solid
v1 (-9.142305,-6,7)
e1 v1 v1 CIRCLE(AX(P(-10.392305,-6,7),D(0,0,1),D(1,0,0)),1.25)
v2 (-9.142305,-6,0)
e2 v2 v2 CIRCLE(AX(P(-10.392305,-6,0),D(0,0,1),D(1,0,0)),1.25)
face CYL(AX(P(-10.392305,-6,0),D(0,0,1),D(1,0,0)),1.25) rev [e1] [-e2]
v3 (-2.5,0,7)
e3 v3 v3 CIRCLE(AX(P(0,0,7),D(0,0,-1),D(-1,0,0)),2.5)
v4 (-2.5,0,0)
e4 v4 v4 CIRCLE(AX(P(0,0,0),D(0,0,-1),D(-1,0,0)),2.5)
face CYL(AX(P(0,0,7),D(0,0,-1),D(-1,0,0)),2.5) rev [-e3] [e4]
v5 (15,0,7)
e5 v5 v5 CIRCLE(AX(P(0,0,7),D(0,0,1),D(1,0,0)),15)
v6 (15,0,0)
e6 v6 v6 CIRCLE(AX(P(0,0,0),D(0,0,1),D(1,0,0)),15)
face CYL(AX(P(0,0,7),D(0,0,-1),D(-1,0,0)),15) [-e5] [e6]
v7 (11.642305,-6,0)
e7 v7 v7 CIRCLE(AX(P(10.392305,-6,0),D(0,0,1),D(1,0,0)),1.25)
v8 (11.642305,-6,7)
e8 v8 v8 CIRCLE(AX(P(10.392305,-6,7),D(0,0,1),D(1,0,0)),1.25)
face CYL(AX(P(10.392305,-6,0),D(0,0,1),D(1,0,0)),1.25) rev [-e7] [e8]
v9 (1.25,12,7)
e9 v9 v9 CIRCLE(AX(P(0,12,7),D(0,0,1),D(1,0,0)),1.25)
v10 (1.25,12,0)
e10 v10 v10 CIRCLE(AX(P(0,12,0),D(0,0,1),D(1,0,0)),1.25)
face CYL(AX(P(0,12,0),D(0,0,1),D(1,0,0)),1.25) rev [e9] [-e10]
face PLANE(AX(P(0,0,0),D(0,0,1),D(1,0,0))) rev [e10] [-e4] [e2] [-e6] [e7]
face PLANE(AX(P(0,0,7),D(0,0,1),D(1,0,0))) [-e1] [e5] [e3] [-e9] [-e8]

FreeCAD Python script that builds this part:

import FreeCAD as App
import Part
import Sketcher
Q = App.Units.Quantity

doc = App.newDocument("Part")
body = doc.addObject("PartDesign::Body", "Body")

sketch1 = doc.addObject("Sketcher::SketchObject", "Sketch")
body.addObject(sketch1)
sketch1.AttachmentSupport = (doc.XY_Plane, [""])
sketch1.MapMode = "FlatFace"
sketch1.addGeometry(Part.Circle(App.Vector(0, 0, 0), App.Vector(0, 0, 1), 15), False)
sketch1.addConstraint([
    Sketcher.Constraint("Coincident", 0, 3, -1, 1),
    Sketcher.Constraint("Diameter", 0, Q("30 mm")),
])
pad1 = doc.addObject("PartDesign::Pad", "Pad")
body.addObject(pad1)
pad1.Profile = sketch1
pad1.Length = 7

sketch2 = doc.addObject("Sketcher::SketchObject", "Sketch001")
body.addObject(sketch2)
sketch2.AttachmentSupport = (doc.XY_Plane, [""])
sketch2.MapMode = "FlatFace"
sketch2.addGeometry(Part.Circle(App.Vector(0, 0, 0), App.Vector(0, 0, 1), 2.5), False)
sketch2.addConstraint([
    Sketcher.Constraint("Coincident", 0, 3, -1, 1),
    Sketcher.Constraint("Diameter", 0, Q("5 mm")),
])
pocket1 = doc.addObject("PartDesign::Pocket", "Pocket")
body.addObject(pocket1)
pocket1.Profile = sketch2
pocket1.Length = 7
pocket1.Reversed = True

sketch3 = doc.addObject("Sketcher::SketchObject", "Sketch002")
body.addObject(sketch3)
sketch3.AttachmentSupport = (doc.XY_Plane, [""])
sketch3.MapMode = "FlatFace"
sketch3.AttachmentOffset = App.Placement(App.Vector(0, 0, 7), App.Rotation())
sketch3.addGeometry([
    Part.Circle(App.Vector(0, 12, 0), App.Vector(0, 0, 1), 1.2),
    Part.Circle(App.Vector(10.4, -6, 0), App.Vector(0, 0, 1), 1.2),
    Part.Circle(App.Vector(-10.4, -6, 0), App.Vector(0, 0, 1), 1.2),
], False)
sketch3.addConstraint([
    Sketcher.Constraint("Equal", 0, 1),
    Sketcher.Constraint("Equal", 1, 2),
    Sketcher.Constraint("Symmetric", 1, 3, 2, 3, -2),
    Sketcher.Constraint("PointOnObject", 0, 3, -2),
    Sketcher.Constraint("Diameter", 0, Q("2.5 mm")),
    Sketcher.Constraint("DistanceY", -1, 1, 0, 3, Q("12 mm")),
    Sketcher.Constraint("DistanceY", 1, 3, -1, 1, Q("6 mm")),
    Sketcher.Constraint("DistanceX", 2, 3, 1, 3, Q("20.78461 mm")),
])
pocket2 = doc.addObject("PartDesign::Pocket", "Pocket001")
body.addObject(pocket2)
pocket2.Profile = sketch3
pocket2.Type = "ThroughAll"

doc.recompute()
